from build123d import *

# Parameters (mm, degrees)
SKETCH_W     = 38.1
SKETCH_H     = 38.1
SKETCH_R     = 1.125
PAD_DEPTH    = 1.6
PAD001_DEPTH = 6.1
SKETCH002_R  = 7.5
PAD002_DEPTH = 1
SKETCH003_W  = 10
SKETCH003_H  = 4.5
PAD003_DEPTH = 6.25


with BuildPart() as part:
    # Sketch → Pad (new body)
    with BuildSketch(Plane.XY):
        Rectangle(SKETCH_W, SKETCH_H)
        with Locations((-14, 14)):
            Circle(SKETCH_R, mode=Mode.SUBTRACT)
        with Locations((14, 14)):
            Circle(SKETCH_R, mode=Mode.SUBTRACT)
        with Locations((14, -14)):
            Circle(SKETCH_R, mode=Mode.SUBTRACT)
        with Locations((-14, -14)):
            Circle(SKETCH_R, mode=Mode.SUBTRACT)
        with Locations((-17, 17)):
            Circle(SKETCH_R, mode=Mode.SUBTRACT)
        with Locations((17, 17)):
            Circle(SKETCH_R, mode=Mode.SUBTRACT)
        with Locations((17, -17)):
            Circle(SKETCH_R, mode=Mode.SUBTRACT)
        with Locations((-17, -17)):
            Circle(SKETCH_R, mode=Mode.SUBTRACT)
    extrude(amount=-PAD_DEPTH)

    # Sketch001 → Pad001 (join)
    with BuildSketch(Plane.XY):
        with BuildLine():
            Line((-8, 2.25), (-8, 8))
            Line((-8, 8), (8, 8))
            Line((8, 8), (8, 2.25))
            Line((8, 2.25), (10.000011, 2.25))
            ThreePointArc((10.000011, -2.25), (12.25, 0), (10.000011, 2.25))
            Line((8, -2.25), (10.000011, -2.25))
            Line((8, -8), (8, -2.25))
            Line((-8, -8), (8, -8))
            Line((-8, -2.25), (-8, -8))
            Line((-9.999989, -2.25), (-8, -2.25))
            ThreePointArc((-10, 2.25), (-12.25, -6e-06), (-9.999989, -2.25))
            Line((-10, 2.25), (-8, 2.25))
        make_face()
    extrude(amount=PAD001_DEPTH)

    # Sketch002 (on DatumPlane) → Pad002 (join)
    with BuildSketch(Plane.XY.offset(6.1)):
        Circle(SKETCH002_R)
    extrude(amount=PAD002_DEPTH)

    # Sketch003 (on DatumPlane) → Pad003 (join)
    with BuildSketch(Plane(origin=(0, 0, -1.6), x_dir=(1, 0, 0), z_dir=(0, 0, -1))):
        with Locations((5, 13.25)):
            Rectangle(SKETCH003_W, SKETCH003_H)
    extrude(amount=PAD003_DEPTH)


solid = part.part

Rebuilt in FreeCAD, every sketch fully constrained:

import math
import FreeCAD as App
import Part
import Sketcher

doc = App.newDocument("Part")
params = doc.addObject("Spreadsheet::Sheet", "Params")
for row, (alias, value) in enumerate([
    ("sketch1_diameter", "2.25 mm"),
    ("sketch1_width", "38.1 mm"),
    ("pad1_length", "1.6 mm"),
    ("sketch2_width", "2 mm"),
    ("sketch2_width2", "16 mm"),
    ("sketch2_radius", "2.25 mm"),
    ("pad2_length", "6.1 mm"),
    ("sketch3_diameter", "15 mm"),
    ("pad3_length", "1 mm"),
    ("sketch4_width", "10 mm"),
    ("sketch4_height", "4.5 mm"),
    ("pad4_length", "6.25 mm"),
], start=1):
    params.set(f"A{row}", alias)
    params.set(f"B{row}", "=" + value)
    params.setAlias(f"B{row}", alias)

body = doc.addObject("PartDesign::Body", "Body")

# Sketch on XY plane
sketch1 = doc.addObject("Sketcher::SketchObject", "Sketch")
body.addObject(sketch1)
sketch1.AttachmentSupport = (doc.XY_Plane, [""])
sketch1.MapMode = "FlatFace"
sketch1.addGeometry(Part.LineSegment(App.Vector(-19.1, 19.1, 0), App.Vector(-19.1, -19.1, 0)), False)
sketch1.addGeometry(Part.LineSegment(App.Vector(-19.1, -19.1, 0), App.Vector(19.1, -19.1, 0)), False)
sketch1.addGeometry(Part.LineSegment(App.Vector(19.1, -19.1, 0), App.Vector(19.1, 19.1, 0)), False)
sketch1.addGeometry(Part.LineSegment(App.Vector(19.1, 19.1, 0), App.Vector(-19.1, 19.1, 0)), False)
sketch1.addGeometry(Part.Circle(App.Vector(-17, -17, 0), App.Vector(0, 0, 1), 1.1), False)
sketch1.addGeometry(Part.Circle(App.Vector(-14, -14, 0), App.Vector(0, 0, 1), 1.1), False)
sketch1.addGeometry(Part.Circle(App.Vector(17, -17, 0), App.Vector(0, 0, 1), 1.1), False)
sketch1.addGeometry(Part.Circle(App.Vector(14, -14, 0), App.Vector(0, 0, 1), 1.1), False)
sketch1.addGeometry(Part.Circle(App.Vector(-14, 14, 0), App.Vector(0, 0, 1), 1.1), False)
sketch1.addGeometry(Part.Circle(App.Vector(-17, 17, 0), App.Vector(0, 0, 1), 1.1), False)
sketch1.addGeometry(Part.Circle(App.Vector(14, 14, 0), App.Vector(0, 0, 1), 1.1), False)
sketch1.addGeometry(Part.Circle(App.Vector(17, 17, 0), App.Vector(0, 0, 1), 1.1), False)
sketch1.addConstraint(Sketcher.Constraint("Coincident", 0, 2, 1, 1))
sketch1.addConstraint(Sketcher.Constraint("Coincident", 1, 2, 2, 1))
sketch1.addConstraint(Sketcher.Constraint("Coincident", 2, 2, 3, 1))
sketch1.addConstraint(Sketcher.Constraint("Coincident", 3, 2, 0, 1))
sketch1.addConstraint(Sketcher.Constraint("Vertical", 0))
sketch1.addConstraint(Sketcher.Constraint("Horizontal", 1))
sketch1.addConstraint(Sketcher.Constraint("Vertical", 2))
sketch1.addConstraint(Sketcher.Constraint("Horizontal", 3))
sketch1.addConstraint(Sketcher.Constraint("Equal", 4, 5))
sketch1.addConstraint(Sketcher.Constraint("Equal", 5, 6))
sketch1.addConstraint(Sketcher.Constraint("Equal", 6, 7))
sketch1.addConstraint(Sketcher.Constraint("Equal", 7, 8))
sketch1.addConstraint(Sketcher.Constraint("Equal", 8, 9))
sketch1.addConstraint(Sketcher.Constraint("Equal", 9, 10))
sketch1.addConstraint(Sketcher.Constraint("Equal", 10, 11))
sketch1.addConstraint(Sketcher.Constraint("Symmetric", 7, 3, 8, 3, -1, 1))
sketch1.addConstraint(Sketcher.Constraint("Symmetric", 6, 3, 9, 3, -1, 1))
sketch1.addConstraint(Sketcher.Constraint("Symmetric", 5, 3, 10, 3, -1, 1))
sketch1.addConstraint(Sketcher.Constraint("Symmetric", 4, 3, 11, 3, -1, 1))
sketch1.addConstraint(Sketcher.Constraint("Symmetric", 0, 2, 2, 2, -1, 1))
sketch1.addConstraint(Sketcher.Constraint("Symmetric", 4, 3, 6, 3, -2))
sketch1.addConstraint(Sketcher.Constraint("Symmetric", 5, 3, 7, 3, -2))
sketch1.addConstraint(Sketcher.Constraint("Equal", 3, 0))
sketch1.addConstraint(Sketcher.Constraint("Diameter", 4, 2.25))
sketch1.addConstraint(Sketcher.Constraint("DistanceX", 1, 1, 1, 2, 38.1))
sketch1.addConstraint(Sketcher.Constraint("DistanceX", 4, 3, -1, 1, 17.0))
sketch1.addConstraint(Sketcher.Constraint("DistanceY", 4, 3, -1, 1, 17.0))
sketch1.addConstraint(Sketcher.Constraint("DistanceX", 5, 3, -1, 1, 14.0))
sketch1.addConstraint(Sketcher.Constraint("DistanceY", 5, 3, -1, 1, 14.0))
sketch1.setExpression("Constraints[23]", "Params.sketch1_diameter")
sketch1.setExpression("Constraints[24]", "Params.sketch1_width")
pad1 = doc.addObject("PartDesign::Pad", "Pad")
body.addObject(pad1)
pad1.Profile = sketch1
pad1.setExpression("Length", "Params.pad1_length")
pad1.Reversed = True

# Sketch on XY plane
sketch2 = doc.addObject("Sketcher::SketchObject", "Sketch001")
body.addObject(sketch2)
sketch2.AttachmentSupport = (doc.XY_Plane, [""])
sketch2.MapMode = "FlatFace"
sketch2.addGeometry(Part.LineSegment(App.Vector(-8, 8, 0), App.Vector(-8, 2.2, 0)), False)
sketch2.addGeometry(Part.LineSegment(App.Vector(-8, 2.2, 0), App.Vector(-10, 2.2, 0)), False)
sketch2.addGeometry(Part.ArcOfCircle(Part.Circle(App.Vector(-10, 0, 0), App.Vector(0, 0, 1), 2.2), math.radians(90), math.radians(270)), False)
sketch2.addGeometry(Part.LineSegment(App.Vector(-10, -2.2, 0), App.Vector(-8, -2.2, 0)), False)
sketch2.addGeometry(Part.LineSegment(App.Vector(-8, -2.2, 0), App.Vector(-8, -8, 0)), False)
sketch2.addGeometry(Part.LineSegment(App.Vector(-8, -8, 0), App.Vector(8, -8, 0)), False)
sketch2.addGeometry(Part.LineSegment(App.Vector(8, -8, 0), App.Vector(8, -2.2, 0)), False)
sketch2.addGeometry(Part.LineSegment(App.Vector(8, -2.2, 0), App.Vector(10, -2.2, 0)), False)
sketch2.addGeometry(Part.ArcOfCircle(Part.Circle(App.Vector(10, 0, 0), App.Vector(0, 0, 1), 2.2), math.radians(-90), math.radians(90)), False)
sketch2.addGeometry(Part.LineSegment(App.Vector(10, 2.2, 0), App.Vector(8, 2.2, 0)), False)
sketch2.addGeometry(Part.LineSegment(App.Vector(8, 2.2, 0), App.Vector(8, 8, 0)), False)
sketch2.addGeometry(Part.LineSegment(App.Vector(8, 8, 0), App.Vector(-8, 8, 0)), False)
sketch2.addConstraint(Sketcher.Constraint("Coincident", 0, 2, 1, 1))
sketch2.addConstraint(Sketcher.Constraint("Tangent", 1, 2, 2, 1))
sketch2.addConstraint(Sketcher.Constraint("Coincident", 2, 2, 3, 1))
sketch2.addConstraint(Sketcher.Constraint("Coincident", 3, 2, 4, 1))
sketch2.addConstraint(Sketcher.Constraint("Coincident", 4, 2, 5, 1))
sketch2.addConstraint(Sketcher.Constraint("Coincident", 5, 2, 6, 1))
sketch2.addConstraint(Sketcher.Constraint("Coincident", 6, 2, 7, 1))
sketch2.addConstraint(Sketcher.Constraint("Coincident", 7, 2, 8, 1))
sketch2.addConstraint(Sketcher.Constraint("Coincident", 8, 2, 9, 1))
sketch2.addConstraint(Sketcher.Constraint("Coincident", 9, 2, 10, 1))
sketch2.addConstraint(Sketcher.Constraint("Coincident", 10, 2, 11, 1))
sketch2.addConstraint(Sketcher.Constraint("Coincident", 11, 2, 0, 1))
sketch2.addConstraint(Sketcher.Constraint("Vertical", 0))
sketch2.addConstraint(Sketcher.Constraint("Horizontal", 1))
sketch2.addConstraint(Sketcher.Constraint("Horizontal", 3))
sketch2.addConstraint(Sketcher.Constraint("Vertical", 4))
sketch2.addConstraint(Sketcher.Constraint("Horizontal", 5))
sketch2.addConstraint(Sketcher.Constraint("Vertical", 6))
sketch2.addConstraint(Sketcher.Constraint("Horizontal", 7))
sketch2.addConstraint(Sketcher.Constraint("Horizontal", 9))
sketch2.addConstraint(Sketcher.Constraint("Vertical", 10))
sketch2.addConstraint(Sketcher.Constraint("Horizontal", 11))
sketch2.addConstraint(Sketcher.Constraint("Equal", 2, 8))
sketch2.addConstraint(Sketcher.Constraint("Symmetric", 2, 3, 8, 3, -1, 1))
sketch2.addConstraint(Sketcher.Constraint("Symmetric", 4, 2, 10, 2, -1, 1))
sketch2.addConstraint(Sketcher.Constraint("Symmetric", 3, 2, 6, 2, -2))
sketch2.addConstraint(Sketcher.Constraint("Vertical", 0, 2, 3, 2))
sketch2.addConstraint(Sketcher.Constraint("Vertical", 7, 2, 8, 2))
sketch2.addConstraint(Sketcher.Constraint("DistanceX", 1, 2, 1, 1, 2.0))
sketch2.addConstraint(Sketcher.Constraint("DistanceX", 5, 1, 5, 2, 16.0))
sketch2.addConstraint(Sketcher.Constraint("Radius", 2, 2.25))
sketch2.addConstraint(Sketcher.Constraint("DistanceY", 4, 2, -1, 1, 8.0))
sketch2.addConstraint(Sketcher.Constraint("DistanceX", 3, 1, 3, 2, 1.999989))
sketch2.addConstraint(Sketcher.Constraint("DistanceX", 7, 1, 7, 2, 2.000011))
sketch2.setExpression("Constraints[28]", "Params.sketch2_width")
sketch2.setExpression("Constraints[29]", "Params.sketch2_width2")
sketch2.setExpression("Constraints[30]", "Params.sketch2_radius")
pad2 = doc.addObject("PartDesign::Pad", "Pad001")
body.addObject(pad2)
pad2.Profile = sketch2
pad2.setExpression("Length", "Params.pad2_length")

# Sketch on XY plane
sketch3 = doc.addObject("Sketcher::SketchObject", "Sketch002")
body.addObject(sketch3)
sketch3.AttachmentSupport = (doc.XY_Plane, [""])
sketch3.MapMode = "FlatFace"
sketch3.AttachmentOffset = App.Placement(App.Vector(0, 0, 6.1), App.Rotation())
sketch3.addGeometry(Part.Circle(App.Vector(0, 0, 0), App.Vector(0, 0, 1), 8), False)
sketch3.addConstraint(Sketcher.Constraint("Coincident", 0, 3, -1, 1))
sketch3.addConstraint(Sketcher.Constraint("Diameter", 0, 15.0))
sketch3.setExpression("Constraints[1]", "Params.sketch3_diameter")
pad3 = doc.addObject("PartDesign::Pad", "Pad002")
body.addObject(pad3)
pad3.Profile = sketch3
pad3.setExpression("Length", "Params.pad3_length")

# Sketch on XY plane
sketch4 = doc.addObject("Sketcher::SketchObject", "Sketch003")
body.addObject(sketch4)
sketch4.AttachmentSupport = (doc.XY_Plane, [""])
sketch4.MapMode = "FlatFace"
sketch4.AttachmentOffset = App.Placement(App.Vector(0, 0, -1.6), App.Rotation())
sketch4.addGeometry(Part.LineSegment(App.Vector(0, -15.5, 0), App.Vector(0, -11, 0)), False)
sketch4.addGeometry(Part.LineSegment(App.Vector(0, -11, 0), App.Vector(10, -11, 0)), False)
sketch4.addGeometry(Part.LineSegment(App.Vector(10, -11, 0), App.Vector(10, -15.5, 0)), False)
sketch4.addGeometry(Part.LineSegment(App.Vector(10, -15.5, 0), App.Vector(0, -15.5, 0)), False)
sketch4.addConstraint(Sketcher.Constraint("Coincident", 0, 2, 1, 1))
sketch4.addConstraint(Sketcher.Constraint("Coincident", 1, 2, 2, 1))
sketch4.addConstraint(Sketcher.Constraint("Coincident", 2, 2, 3, 1))
sketch4.addConstraint(Sketcher.Constraint("Coincident", 3, 2, 0, 1))
sketch4.addConstraint(Sketcher.Constraint("Vertical", 0))
sketch4.addConstraint(Sketcher.Constraint("Horizontal", 1))
sketch4.addConstraint(Sketcher.Constraint("Vertical", 2))
sketch4.addConstraint(Sketcher.Constraint("Horizontal", 3))
sketch4.addConstraint(Sketcher.Constraint("PointOnObject", 0, 2, -2))
sketch4.addConstraint(Sketcher.Constraint("DistanceX", 1, 1, 1, 2, 10.0))
sketch4.addConstraint(Sketcher.Constraint("DistanceY", 0, 1, 0, 2, 4.5))
sketch4.addConstraint(Sketcher.Constraint("DistanceY", 0, 2, -1, 1, 11.0))
sketch4.setExpression("Constraints[9]", "Params.sketch4_width")
sketch4.setExpression("Constraints[10]", "Params.sketch4_height")
pad4 = doc.addObject("PartDesign::Pad", "Pad003")
body.addObject(pad4)
pad4.Profile = sketch4
pad4.setExpression("Length", "Params.pad4_length")
pad4.Reversed = True

doc.recompute()
